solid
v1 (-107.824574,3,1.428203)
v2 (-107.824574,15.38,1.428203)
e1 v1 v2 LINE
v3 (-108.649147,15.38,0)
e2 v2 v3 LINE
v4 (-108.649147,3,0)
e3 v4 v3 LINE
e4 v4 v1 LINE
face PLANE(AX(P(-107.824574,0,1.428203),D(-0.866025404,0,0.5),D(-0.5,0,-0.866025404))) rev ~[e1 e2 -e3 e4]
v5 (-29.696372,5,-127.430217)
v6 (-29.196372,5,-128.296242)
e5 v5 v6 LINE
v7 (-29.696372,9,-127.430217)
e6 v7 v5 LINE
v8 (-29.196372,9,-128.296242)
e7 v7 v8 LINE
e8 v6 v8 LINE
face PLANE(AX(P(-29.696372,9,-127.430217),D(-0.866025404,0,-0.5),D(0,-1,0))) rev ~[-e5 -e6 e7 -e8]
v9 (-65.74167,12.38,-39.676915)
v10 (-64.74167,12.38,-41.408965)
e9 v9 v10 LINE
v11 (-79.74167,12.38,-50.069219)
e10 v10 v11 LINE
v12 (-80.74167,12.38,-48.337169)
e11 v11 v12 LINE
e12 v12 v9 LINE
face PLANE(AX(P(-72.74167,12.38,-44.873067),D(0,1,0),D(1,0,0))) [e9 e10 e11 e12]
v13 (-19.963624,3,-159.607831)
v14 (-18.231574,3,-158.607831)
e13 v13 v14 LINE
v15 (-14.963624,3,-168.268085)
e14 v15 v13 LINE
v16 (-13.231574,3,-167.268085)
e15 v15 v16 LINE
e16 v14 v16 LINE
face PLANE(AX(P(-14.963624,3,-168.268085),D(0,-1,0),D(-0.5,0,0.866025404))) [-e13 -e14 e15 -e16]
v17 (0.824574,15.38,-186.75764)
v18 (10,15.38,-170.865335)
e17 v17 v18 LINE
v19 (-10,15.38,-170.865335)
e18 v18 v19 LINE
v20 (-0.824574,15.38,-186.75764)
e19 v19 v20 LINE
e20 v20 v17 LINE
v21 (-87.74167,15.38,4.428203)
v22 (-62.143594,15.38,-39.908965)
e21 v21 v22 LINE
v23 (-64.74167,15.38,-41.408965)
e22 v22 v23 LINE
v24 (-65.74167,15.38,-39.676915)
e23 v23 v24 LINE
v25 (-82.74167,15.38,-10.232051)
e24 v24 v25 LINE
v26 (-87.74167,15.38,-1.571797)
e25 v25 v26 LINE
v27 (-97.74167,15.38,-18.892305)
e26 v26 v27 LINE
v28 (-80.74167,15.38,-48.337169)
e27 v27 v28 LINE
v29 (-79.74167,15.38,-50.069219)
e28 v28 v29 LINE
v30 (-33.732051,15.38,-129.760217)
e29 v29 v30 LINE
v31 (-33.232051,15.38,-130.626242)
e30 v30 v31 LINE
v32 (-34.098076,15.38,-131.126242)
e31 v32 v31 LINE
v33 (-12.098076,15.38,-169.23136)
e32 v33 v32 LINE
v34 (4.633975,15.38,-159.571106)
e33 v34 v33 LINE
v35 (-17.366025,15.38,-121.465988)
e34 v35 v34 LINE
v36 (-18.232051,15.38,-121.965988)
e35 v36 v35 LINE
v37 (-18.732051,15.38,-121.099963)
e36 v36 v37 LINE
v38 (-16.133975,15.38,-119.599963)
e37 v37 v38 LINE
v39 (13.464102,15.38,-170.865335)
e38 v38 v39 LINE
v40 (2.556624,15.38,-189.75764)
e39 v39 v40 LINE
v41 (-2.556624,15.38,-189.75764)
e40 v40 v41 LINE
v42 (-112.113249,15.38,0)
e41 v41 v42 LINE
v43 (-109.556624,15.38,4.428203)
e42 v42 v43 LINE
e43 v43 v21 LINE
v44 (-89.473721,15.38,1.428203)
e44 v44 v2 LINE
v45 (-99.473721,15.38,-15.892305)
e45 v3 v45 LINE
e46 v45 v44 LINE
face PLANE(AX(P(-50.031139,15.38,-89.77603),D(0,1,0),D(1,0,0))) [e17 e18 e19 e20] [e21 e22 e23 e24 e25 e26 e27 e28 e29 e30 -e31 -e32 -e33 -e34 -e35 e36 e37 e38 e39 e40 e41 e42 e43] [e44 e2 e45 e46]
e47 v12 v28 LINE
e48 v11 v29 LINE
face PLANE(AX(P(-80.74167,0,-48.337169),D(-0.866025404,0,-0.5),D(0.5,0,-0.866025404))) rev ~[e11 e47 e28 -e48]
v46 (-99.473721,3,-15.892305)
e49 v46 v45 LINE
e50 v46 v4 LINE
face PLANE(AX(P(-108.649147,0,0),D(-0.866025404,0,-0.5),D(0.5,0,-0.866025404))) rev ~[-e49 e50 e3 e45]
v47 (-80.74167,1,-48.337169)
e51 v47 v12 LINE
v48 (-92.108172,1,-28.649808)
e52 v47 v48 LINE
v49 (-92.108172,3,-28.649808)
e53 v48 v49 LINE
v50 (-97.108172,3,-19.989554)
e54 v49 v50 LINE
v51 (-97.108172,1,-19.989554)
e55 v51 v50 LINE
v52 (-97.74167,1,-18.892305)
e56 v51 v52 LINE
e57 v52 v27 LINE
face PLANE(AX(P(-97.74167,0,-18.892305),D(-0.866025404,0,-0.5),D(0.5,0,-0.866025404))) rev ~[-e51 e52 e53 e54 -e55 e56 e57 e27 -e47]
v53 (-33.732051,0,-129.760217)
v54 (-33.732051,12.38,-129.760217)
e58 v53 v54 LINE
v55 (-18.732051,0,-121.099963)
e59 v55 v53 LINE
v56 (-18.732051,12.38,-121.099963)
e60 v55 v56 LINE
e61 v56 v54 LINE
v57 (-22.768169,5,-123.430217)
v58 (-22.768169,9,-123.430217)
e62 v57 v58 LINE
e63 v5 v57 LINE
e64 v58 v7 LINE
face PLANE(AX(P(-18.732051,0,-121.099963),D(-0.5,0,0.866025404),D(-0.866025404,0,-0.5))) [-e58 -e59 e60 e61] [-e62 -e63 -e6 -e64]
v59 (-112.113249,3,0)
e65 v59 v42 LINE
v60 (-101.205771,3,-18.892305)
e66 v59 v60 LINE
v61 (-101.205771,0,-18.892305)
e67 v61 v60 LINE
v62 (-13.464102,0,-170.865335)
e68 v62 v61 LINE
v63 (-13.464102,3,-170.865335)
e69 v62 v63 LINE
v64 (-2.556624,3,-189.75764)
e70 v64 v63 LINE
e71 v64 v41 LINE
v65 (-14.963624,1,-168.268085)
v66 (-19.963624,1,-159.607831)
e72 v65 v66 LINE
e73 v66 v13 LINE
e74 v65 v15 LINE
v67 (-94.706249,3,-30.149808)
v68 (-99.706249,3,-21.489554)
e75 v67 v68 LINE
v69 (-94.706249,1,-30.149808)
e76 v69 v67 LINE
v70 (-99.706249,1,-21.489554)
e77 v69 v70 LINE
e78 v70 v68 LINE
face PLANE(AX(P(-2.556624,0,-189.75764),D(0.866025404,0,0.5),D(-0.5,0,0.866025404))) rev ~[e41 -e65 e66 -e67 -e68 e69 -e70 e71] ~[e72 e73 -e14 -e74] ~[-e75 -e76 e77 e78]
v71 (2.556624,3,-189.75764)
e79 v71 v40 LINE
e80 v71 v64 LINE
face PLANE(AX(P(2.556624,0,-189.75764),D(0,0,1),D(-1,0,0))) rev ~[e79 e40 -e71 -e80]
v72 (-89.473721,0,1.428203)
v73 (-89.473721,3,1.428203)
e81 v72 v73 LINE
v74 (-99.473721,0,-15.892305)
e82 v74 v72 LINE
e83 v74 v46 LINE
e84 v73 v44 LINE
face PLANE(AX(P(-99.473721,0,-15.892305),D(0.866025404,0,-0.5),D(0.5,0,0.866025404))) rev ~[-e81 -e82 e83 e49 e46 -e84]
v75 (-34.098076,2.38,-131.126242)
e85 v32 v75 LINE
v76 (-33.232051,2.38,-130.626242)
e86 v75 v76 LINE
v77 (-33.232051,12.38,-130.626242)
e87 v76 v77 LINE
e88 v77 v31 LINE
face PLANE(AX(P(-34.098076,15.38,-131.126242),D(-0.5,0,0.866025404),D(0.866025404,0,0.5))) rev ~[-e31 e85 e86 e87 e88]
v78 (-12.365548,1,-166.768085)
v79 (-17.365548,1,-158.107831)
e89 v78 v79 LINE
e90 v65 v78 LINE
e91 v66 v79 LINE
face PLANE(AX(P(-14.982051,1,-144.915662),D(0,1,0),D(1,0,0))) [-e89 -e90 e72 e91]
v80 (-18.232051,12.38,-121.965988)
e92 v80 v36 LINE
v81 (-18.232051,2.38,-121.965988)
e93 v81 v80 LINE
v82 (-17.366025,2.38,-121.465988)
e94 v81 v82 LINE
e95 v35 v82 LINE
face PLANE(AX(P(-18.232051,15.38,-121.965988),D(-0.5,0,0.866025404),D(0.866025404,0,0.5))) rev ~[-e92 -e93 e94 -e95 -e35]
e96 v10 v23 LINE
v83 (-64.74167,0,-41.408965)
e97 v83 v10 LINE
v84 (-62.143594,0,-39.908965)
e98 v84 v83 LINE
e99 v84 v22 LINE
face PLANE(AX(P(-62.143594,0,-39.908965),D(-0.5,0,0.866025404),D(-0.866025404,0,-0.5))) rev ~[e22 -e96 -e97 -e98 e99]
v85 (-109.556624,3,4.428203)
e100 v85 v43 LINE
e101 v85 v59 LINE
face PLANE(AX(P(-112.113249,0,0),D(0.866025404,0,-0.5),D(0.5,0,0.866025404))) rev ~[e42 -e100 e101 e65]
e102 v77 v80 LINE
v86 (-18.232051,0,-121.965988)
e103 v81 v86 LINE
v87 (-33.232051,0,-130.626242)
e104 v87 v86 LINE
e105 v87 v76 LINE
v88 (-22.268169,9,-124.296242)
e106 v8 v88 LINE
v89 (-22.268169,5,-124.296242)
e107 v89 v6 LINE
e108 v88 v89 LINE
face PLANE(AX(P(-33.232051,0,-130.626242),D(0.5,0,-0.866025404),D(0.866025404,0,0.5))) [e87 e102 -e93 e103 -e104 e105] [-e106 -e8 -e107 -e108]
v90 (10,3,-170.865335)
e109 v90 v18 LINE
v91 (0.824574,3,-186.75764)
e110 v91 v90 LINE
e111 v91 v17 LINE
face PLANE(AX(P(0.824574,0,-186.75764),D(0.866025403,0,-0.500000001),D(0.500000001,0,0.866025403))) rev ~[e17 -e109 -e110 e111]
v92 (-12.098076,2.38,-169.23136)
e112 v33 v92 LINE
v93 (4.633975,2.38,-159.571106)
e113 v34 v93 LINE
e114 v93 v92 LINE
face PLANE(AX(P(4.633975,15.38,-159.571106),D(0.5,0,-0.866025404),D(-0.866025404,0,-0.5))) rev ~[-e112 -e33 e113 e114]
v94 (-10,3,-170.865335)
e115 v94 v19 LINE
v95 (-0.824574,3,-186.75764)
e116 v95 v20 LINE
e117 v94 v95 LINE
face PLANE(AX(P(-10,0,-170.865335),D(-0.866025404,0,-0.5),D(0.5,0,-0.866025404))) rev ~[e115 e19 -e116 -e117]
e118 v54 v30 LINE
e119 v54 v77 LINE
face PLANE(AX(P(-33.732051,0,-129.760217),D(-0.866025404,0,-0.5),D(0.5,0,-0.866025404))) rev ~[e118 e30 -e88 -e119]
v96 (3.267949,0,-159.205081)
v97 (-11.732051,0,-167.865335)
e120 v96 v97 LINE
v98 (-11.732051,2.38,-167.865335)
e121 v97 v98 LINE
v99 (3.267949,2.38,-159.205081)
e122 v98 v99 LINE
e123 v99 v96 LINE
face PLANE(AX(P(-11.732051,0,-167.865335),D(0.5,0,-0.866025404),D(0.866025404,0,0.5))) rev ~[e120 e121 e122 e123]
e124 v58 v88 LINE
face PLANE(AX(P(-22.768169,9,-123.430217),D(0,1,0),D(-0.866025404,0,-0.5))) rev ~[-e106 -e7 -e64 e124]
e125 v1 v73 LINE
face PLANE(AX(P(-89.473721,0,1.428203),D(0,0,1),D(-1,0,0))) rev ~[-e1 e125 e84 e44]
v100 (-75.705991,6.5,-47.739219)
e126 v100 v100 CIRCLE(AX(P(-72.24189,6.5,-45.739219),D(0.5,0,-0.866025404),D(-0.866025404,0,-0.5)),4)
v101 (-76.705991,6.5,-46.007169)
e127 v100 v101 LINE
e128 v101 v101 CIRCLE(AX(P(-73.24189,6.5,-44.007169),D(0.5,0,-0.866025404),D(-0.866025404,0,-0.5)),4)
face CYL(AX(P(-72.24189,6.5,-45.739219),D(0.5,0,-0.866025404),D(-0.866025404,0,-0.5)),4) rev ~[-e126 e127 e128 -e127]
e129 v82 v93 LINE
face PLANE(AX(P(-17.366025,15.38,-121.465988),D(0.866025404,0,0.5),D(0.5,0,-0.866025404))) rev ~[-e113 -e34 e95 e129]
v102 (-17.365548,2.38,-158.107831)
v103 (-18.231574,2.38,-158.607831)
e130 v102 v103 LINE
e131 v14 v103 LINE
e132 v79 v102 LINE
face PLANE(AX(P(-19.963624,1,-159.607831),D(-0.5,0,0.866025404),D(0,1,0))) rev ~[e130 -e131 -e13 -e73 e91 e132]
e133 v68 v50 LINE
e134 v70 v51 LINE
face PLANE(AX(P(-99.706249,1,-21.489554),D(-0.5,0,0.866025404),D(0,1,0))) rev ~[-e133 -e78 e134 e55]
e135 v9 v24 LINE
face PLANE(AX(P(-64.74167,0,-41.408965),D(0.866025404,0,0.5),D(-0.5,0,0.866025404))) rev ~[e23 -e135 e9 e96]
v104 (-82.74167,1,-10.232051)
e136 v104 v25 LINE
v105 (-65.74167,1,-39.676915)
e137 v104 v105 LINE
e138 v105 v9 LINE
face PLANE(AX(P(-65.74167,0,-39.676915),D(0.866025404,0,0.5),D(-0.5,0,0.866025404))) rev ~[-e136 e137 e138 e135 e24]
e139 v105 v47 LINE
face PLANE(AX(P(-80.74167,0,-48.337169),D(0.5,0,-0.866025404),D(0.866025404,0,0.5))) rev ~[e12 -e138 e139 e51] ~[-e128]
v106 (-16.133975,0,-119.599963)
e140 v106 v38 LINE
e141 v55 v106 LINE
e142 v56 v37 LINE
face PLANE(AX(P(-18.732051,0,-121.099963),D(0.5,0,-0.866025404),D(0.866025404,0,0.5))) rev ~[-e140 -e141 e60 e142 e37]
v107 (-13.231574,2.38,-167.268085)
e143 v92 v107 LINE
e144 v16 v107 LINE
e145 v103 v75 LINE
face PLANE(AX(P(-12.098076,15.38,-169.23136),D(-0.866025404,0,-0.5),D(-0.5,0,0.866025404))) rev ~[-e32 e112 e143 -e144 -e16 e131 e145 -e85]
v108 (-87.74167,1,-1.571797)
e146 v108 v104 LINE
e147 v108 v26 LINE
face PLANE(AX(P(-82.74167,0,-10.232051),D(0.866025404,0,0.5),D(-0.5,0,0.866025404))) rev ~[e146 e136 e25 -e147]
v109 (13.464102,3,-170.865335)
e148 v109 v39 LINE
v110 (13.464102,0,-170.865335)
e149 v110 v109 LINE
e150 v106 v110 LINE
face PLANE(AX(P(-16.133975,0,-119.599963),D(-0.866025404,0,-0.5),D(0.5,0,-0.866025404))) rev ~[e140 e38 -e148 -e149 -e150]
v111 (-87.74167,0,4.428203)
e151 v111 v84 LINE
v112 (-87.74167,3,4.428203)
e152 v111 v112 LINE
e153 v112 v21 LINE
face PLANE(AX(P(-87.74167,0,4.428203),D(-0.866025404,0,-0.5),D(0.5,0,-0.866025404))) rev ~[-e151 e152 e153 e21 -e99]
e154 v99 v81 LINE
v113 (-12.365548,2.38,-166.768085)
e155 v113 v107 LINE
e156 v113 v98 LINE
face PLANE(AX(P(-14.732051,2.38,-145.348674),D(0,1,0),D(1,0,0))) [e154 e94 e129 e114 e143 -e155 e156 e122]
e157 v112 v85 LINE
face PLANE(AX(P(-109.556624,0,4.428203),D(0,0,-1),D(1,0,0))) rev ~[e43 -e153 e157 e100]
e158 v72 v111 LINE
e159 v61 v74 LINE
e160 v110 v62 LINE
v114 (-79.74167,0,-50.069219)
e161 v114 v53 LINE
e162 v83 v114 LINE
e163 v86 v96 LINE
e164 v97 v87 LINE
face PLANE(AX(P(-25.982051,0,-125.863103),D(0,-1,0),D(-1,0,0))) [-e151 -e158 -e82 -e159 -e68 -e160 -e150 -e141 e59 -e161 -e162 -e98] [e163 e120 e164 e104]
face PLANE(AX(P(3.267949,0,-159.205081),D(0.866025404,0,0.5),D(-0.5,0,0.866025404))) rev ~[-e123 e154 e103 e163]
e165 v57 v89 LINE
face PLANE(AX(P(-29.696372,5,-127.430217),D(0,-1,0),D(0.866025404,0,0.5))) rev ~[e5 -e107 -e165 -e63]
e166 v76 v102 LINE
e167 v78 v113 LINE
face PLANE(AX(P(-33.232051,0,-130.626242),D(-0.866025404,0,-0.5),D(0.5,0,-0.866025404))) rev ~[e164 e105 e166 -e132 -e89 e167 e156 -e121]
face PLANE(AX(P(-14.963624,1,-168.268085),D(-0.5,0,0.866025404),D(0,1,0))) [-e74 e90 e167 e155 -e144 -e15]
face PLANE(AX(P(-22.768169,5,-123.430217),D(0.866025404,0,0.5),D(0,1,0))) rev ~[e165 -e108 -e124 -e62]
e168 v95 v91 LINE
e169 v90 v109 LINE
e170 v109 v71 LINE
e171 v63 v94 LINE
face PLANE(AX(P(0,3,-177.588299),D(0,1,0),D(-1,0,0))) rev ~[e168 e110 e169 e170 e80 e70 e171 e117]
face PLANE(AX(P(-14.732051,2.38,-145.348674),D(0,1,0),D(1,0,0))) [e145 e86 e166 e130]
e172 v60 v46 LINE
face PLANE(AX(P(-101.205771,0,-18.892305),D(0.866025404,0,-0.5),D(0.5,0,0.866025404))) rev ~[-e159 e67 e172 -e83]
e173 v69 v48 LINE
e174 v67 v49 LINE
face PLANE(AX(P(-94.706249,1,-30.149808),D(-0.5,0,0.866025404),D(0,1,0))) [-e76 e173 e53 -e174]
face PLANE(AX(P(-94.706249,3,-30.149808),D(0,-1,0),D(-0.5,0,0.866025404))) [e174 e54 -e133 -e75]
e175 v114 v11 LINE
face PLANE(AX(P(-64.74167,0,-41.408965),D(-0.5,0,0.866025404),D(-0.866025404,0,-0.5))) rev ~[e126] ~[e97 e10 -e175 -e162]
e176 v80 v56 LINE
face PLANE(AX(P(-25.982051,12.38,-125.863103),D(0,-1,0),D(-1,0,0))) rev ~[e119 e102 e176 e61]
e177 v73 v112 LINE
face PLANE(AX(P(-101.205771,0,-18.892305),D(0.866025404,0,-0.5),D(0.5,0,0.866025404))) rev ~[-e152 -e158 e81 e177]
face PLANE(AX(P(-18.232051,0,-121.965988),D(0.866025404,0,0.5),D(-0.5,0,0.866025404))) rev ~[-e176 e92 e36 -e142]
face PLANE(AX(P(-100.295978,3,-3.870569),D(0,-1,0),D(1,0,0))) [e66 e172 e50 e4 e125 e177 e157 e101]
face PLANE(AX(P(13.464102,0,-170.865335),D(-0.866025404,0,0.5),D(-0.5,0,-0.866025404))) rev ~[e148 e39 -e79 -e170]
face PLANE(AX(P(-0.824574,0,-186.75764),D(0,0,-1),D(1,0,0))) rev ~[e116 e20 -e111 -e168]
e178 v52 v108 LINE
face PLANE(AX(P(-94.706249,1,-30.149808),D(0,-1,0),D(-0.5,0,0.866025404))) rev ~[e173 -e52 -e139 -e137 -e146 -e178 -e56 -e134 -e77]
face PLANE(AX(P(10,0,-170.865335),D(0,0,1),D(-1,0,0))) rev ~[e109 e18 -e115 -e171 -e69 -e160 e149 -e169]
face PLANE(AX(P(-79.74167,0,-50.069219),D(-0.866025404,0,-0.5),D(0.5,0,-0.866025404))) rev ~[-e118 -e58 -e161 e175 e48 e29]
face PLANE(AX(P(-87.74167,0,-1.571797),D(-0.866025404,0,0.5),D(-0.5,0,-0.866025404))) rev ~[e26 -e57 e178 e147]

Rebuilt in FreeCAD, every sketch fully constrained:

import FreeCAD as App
import Part
import Sketcher
Q = App.Units.Quantity

doc = App.newDocument("Part")
params = doc.addObject("Spreadsheet::Sheet", "Params")
for row, (alias, value) in enumerate([
    ("sketch1_width", "20 mm"),
    ("sketch1_length", "43 mm"),
    ("sketch1_length2", "1 mm"),
    ("sketch1_length3", "3 mm"),
    ("sketch1_length4", "2 mm"),
    ("pad1_length", "15.38 mm"),
    ("sketch2_length", "43 mm"),
    ("sketch2_length2", "34 mm"),
    ("sketch2_length3", "20 mm"),
    ("pad2_length", "1 mm"),
    ("sketch3_length", "1 mm"),
    ("sketch3_length2", "2 mm"),
    ("pad3_length", "12.38 mm"),
    ("sketch4_width", "8 mm"),
    ("sketch4_height", "4 mm"),
    ("pocket1_length", "8.26 mm"),
    ("sketch5_diameter", "8 mm"),
    ("pocket2_length", "8.26 mm"),
    ("pocket3_length", "3 mm"),
    ("sketch7_width", "10 mm"),
    ("sketch7_height", "2 mm"),
    ("pocket4_length", "3 mm"),
    ("sketch8_length", "1 mm"),
    ("sketch8_length2", "44 mm"),
    ("pocket5_length", "13 mm"),
    ("sketch9_length", "43 mm"),
    ("pocket6_length", "1 mm"),
], start=1):
    params.set(f"A{row}", alias)
    params.set(f"B{row}", "=" + value)
    params.setAlias(f"B{row}", alias)

body = doc.addObject("PartDesign::Body", "Body")

# Sketch on XZ plane
sketch1 = body.newObject("Sketcher::SketchObject", "Sketch")
sketch1.AttachmentSupport = (doc.getObject("XZ_Plane"), [""])
sketch1.MapMode = "FlatFace"
sketch1.addGeometry(Part.LineSegment(App.Vector(-33.2, -130.6, 0), App.Vector(-11.7, -167.9, 0)), False)
sketch1.addGeometry(Part.LineSegment(App.Vector(-11.7, -167.9, 0), App.Vector(3.3, -159.2, 0)), False)
sketch1.addGeometry(Part.LineSegment(App.Vector(3.3, -159.2, 0), App.Vector(-18.2, -122, 0)), False)
sketch1.addGeometry(Part.LineSegment(App.Vector(-18.2, -122, 0), App.Vector(-18.7, -121.1, 0)), False)
sketch1.addGeometry(Part.LineSegment(App.Vector(-18.7, -121.1, 0), App.Vector(-16.1, -119.6, 0)), False)
sketch1.addGeometry(Part.LineSegment(App.Vector(-16.1, -119.6, 0), App.Vector(13.5, -170.9, 0)), False)
sketch1.addGeometry(Part.LineSegment(App.Vector(13.5, -170.9, 0), App.Vector(2.6, -189.8, 0)), False)
sketch1.addGeometry(Part.LineSegment(App.Vector(2.6, -189.8, 0), App.Vector(-2.6, -189.8, 0)), False)
sketch1.addGeometry(Part.LineSegment(App.Vector(-2.6, -189.8, 0), App.Vector(-112.1, 0, 0)), False)
sketch1.addGeometry(Part.LineSegment(App.Vector(-112.1, 0, 0), App.Vector(-109.6, 4.4, 0)), False)
sketch1.addGeometry(Part.LineSegment(App.Vector(-109.6, 4.4, 0), App.Vector(-87.7, 4.4, 0)), False)
sketch1.addGeometry(Part.LineSegment(App.Vector(-87.7, 4.4, 0), App.Vector(-62.1, -39.9, 0)), False)
sketch1.addGeometry(Part.LineSegment(App.Vector(-62.1, -39.9, 0), App.Vector(-64.7, -41.4, 0)), False)
sketch1.addGeometry(Part.LineSegment(App.Vector(-64.7, -41.4, 0), App.Vector(-65.7, -39.7, 0)), False)
sketch1.addGeometry(Part.LineSegment(App.Vector(-65.7, -39.7, 0), App.Vector(-82.7, -10.2, 0)), False)
sketch1.addGeometry(Part.LineSegment(App.Vector(-82.7, -10.2, 0), App.Vector(-87.7, -1.6, 0)), False)
sketch1.addGeometry(Part.LineSegment(App.Vector(-87.7, -1.6, 0), App.Vector(-97.7, -18.9, 0)), False)
sketch1.addGeometry(Part.LineSegment(App.Vector(-97.7, -18.9, 0), App.Vector(-80.7, -48.3, 0)), False)
sketch1.addGeometry(Part.LineSegment(App.Vector(-80.7, -48.3, 0), App.Vector(-79.7, -50.1, 0)), False)
sketch1.addGeometry(Part.LineSegment(App.Vector(-79.7, -50.1, 0), App.Vector(-33.7, -129.8, 0)), False)
sketch1.addGeometry(Part.LineSegment(App.Vector(-33.7, -129.8, 0), App.Vector(-33.2, -130.6, 0)), False)
sketch1.addGeometry(Part.LineSegment(App.Vector(-99.5, -15.9, 0), App.Vector(-89.5, 1.4, 0)), False)
sketch1.addGeometry(Part.LineSegment(App.Vector(-89.5, 1.4, 0), App.Vector(-107.8, 1.4, 0)), False)
sketch1.addGeometry(Part.LineSegment(App.Vector(-107.8, 1.4, 0), App.Vector(-108.6, 0, 0)), False)
sketch1.addGeometry(Part.LineSegment(App.Vector(-108.6, 0, 0), App.Vector(-99.5, -15.9, 0)), False)
sketch1.addGeometry(Part.LineSegment(App.Vector(10, -170.9, 0), App.Vector(-10, -170.9, 0)), False)
sketch1.addGeometry(Part.LineSegment(App.Vector(-10, -170.9, 0), App.Vector(-0.8, -186.8, 0)), False)
sketch1.addGeometry(Part.LineSegment(App.Vector(-0.8, -186.8, 0), App.Vector(0.8, -186.8, 0)), False)
sketch1.addGeometry(Part.LineSegment(App.Vector(0.8, -186.8, 0), App.Vector(10, -170.9, 0)), False)
sketch1.addConstraint(Sketcher.Constraint("Coincident", 0, 2, 1, 1))
sketch1.addConstraint(Sketcher.Constraint("Coincident", 1, 2, 2, 1))
sketch1.addConstraint(Sketcher.Constraint("Coincident", 2, 2, 3, 1))
sketch1.addConstraint(Sketcher.Constraint("Coincident", 3, 2, 4, 1))
sketch1.addConstraint(Sketcher.Constraint("Coincident", 4, 2, 5, 1))
sketch1.addConstraint(Sketcher.Constraint("Coincident", 5, 2, 6, 1))
sketch1.addConstraint(Sketcher.Constraint("Coincident", 6, 2, 7, 1))
sketch1.addConstraint(Sketcher.Constraint("Coincident", 7, 2, 8, 1))
sketch1.addConstraint(Sketcher.Constraint("Coincident", 8, 2, 9, 1))
sketch1.addConstraint(Sketcher.Constraint("Coincident", 9, 2, 10, 1))
sketch1.addConstraint(Sketcher.Constraint("Coincident", 10, 2, 11, 1))
sketch1.addConstraint(Sketcher.Constraint("Coincident", 11, 2, 12, 1))
sketch1.addConstraint(Sketcher.Constraint("Coincident", 12, 2, 13, 1))
sketch1.addConstraint(Sketcher.Constraint("Coincident", 13, 2, 14, 1))
sketch1.addConstraint(Sketcher.Constraint("Coincident", 14, 2, 15, 1))
sketch1.addConstraint(Sketcher.Constraint("Coincident", 15, 2, 16, 1))
sketch1.addConstraint(Sketcher.Constraint("Coincident", 16, 2, 17, 1))
sketch1.addConstraint(Sketcher.Constraint("Coincident", 17, 2, 18, 1))
sketch1.addConstraint(Sketcher.Constraint("Coincident", 18, 2, 19, 1))
sketch1.addConstraint(Sketcher.Constraint("Coincident", 19, 2, 20, 1))
sketch1.addConstraint(Sketcher.Constraint("Coincident", 20, 2, 0, 1))
sketch1.addConstraint(Sketcher.Constraint("Coincident", 21, 2, 22, 1))
sketch1.addConstraint(Sketcher.Constraint("Coincident", 22, 2, 23, 1))
sketch1.addConstraint(Sketcher.Constraint("Coincident", 23, 2, 24, 1))
sketch1.addConstraint(Sketcher.Constraint("Coincident", 24, 2, 21, 1))
sketch1.addConstraint(Sketcher.Constraint("Coincident", 25, 2, 26, 1))
sketch1.addConstraint(Sketcher.Constraint("Coincident", 26, 2, 27, 1))
sketch1.addConstraint(Sketcher.Constraint("Coincident", 27, 2, 28, 1))
sketch1.addConstraint(Sketcher.Constraint("Coincident", 28, 2, 25, 1))
sketch1.addConstraint(Sketcher.Constraint("Horizontal", 7))
sketch1.addConstraint(Sketcher.Constraint("Horizontal", 10))
sketch1.addConstraint(Sketcher.Constraint("Horizontal", 22))
sketch1.addConstraint(Sketcher.Constraint("Horizontal", 25))
sketch1.addConstraint(Sketcher.Constraint("Horizontal", 27))
sketch1.addConstraint(Sketcher.Constraint("PointOnObject", 8, 2, -1))
sketch1.addConstraint(Sketcher.Constraint("PointOnObject", 23, 2, -1))
sketch1.addConstraint(Sketcher.Constraint("Perpendicular", 0, 1))
sketch1.addConstraint(Sketcher.Constraint("Perpendicular", 1, 2))
sketch1.addConstraint(Sketcher.Constraint("Parallel", 2, 3))
sketch1.addConstraint(Sketcher.Constraint("Perpendicular", 3, 4))
sketch1.addConstraint(Sketcher.Constraint("Perpendicular", 4, 5))
sketch1.addConstraint(Sketcher.Constraint("Parallel", 5, 8))
sketch1.addConstraint(Sketcher.Constraint("Parallel", 6, 9))
sketch1.addConstraint(Sketcher.Constraint("Parallel", 8, 11))
sketch1.addConstraint(Sketcher.Constraint("Perpendicular", 11, 12))
sketch1.addConstraint(Sketcher.Constraint("Perpendicular", 12, 13))
sketch1.addConstraint(Sketcher.Constraint("Parallel", 13, 14))
sketch1.addConstraint(Sketcher.Constraint("Parallel", 14, 15))
sketch1.addConstraint(Sketcher.Constraint("Parallel", 9, 16))
sketch1.addConstraint(Sketcher.Constraint("Parallel", 15, 17))
sketch1.addConstraint(Sketcher.Constraint("Parallel", 17, 18))
sketch1.addConstraint(Sketcher.Constraint("Parallel", 18, 19))
sketch1.addConstraint(Sketcher.Constraint("Parallel", 19, 20))
sketch1.addConstraint(Sketcher.Constraint("Parallel", 16, 21))
sketch1.addConstraint(Sketcher.Constraint("Parallel", 21, 23))
sketch1.addConstraint(Sketcher.Constraint("Parallel", 20, 24))
sketch1.addConstraint(Sketcher.Constraint("Parallel", 24, 26))
sketch1.addConstraint(Sketcher.Constraint("Parallel", 23, 28))
sketch1.addConstraint(Sketcher.Constraint("Horizontal", 5, 2, 25, 2))
sketch1.addConstraint(Sketcher.Constraint("Vertical", 10, 2, 15, 2))
sketch1.addConstraint(Sketcher.Constraint("Equal", 0, 2))
sketch1.addConstraint(Sketcher.Constraint("Equal", 4, 12))
sketch1.addConstraint(Sketcher.Constraint("Equal", 14, 17))
sketch1.addConstraint(Sketcher.Constraint("Equal", 13, 18))
sketch1.addConstraint(Sketcher.Constraint("Equal", 3, 20))
sketch1.addConstraint(Sketcher.Constraint("Equal", 16, 21))
sketch1.addConstraint(Sketcher.Constraint("Equal", 24, 26))
sketch1.addConstraint(Sketcher.Constraint("Equal", 26, 28))
sketch1.addConstraint(Sketcher.Constraint("DistanceX", 25, 2, 25, 1, 20.0))
sketch1.addConstraint(Sketcher.Constraint("Angle", 0, Q("-60 deg")))
sketch1.addConstraint(Sketcher.Constraint("Distance", 0, 43.0))
sketch1.addConstraint(Sketcher.Constraint("Distance", 3, 1.0))
sketch1.addConstraint(Sketcher.Constraint("Distance", 4, 3.0))
sketch1.addConstraint(Sketcher.Constraint("Distance", 13, 2.0))
sketch1.addConstraint(Sketcher.Constraint("Distance", 14, 34.0))
sketch1.addConstraint(Sketcher.Constraint("Distance", 15, 10.0))
sketch1.addConstraint(Sketcher.Constraint("Distance", 16, 20.0))
sketch1.addConstraint(Sketcher.Constraint("DistanceX", 25, 2, -1, 1, 10.0))
sketch1.addConstraint(Sketcher.Constraint("DistanceX", 0, 2, 1, 2, 15.0))
sketch1.addConstraint(Sketcher.Constraint("DistanceY", 5, 2, 0, 2, 3.0))
sketch1.addConstraint(Sketcher.Constraint("DistanceY", 21, 2, 10, 2, 3.0))
sketch1.addConstraint(Sketcher.Constraint("DistanceY", 7, 2, 26, 2, 3.0))
sketch1.addConstraint(Sketcher.Constraint("DistanceX", 7, 2, 7, 1, 5.113249))
sketch1.addConstraint(Sketcher.Constraint("DistanceX", -1, 1, 5, 2, 13.464102))
sketch1.addConstraint(Sketcher.Constraint("DistanceX", 8, 2, 23, 2, 3.464102))
sketch1.addConstraint(Sketcher.Constraint("Distance", 8, 219.113249))
sketch1.addConstraint(Sketcher.Constraint("Distance", 9, 5.113249))
sketch1.setExpression("Constraints[68]", "Params.sketch1_width")
sketch1.setExpression("Constraints[70]", "Params.sketch1_length")
sketch1.setExpression("Constraints[71]", "Params.sketch1_length2")
sketch1.setExpression("Constraints[72]", "Params.sketch1_length3")
sketch1.setExpression("Constraints[73]", "Params.sketch1_length4")
pad1 = body.newObject("PartDesign::Pad", "Pad")
pad1.Profile = sketch1
pad1.setExpression("Length", "Params.pad1_length")
pad1.Reversed = True

# Sketch on XZ plane
sketch2 = body.newObject("Sketcher::SketchObject", "Sketch001")
sketch2.AttachmentSupport = (doc.getObject("XZ_Plane"), [""])
sketch2.MapMode = "FlatFace"
sketch2.addGeometry(Part.LineSegment(App.Vector(3, -159, 0), App.Vector(-12, -168, 0)), False)
sketch2.addGeometry(Part.LineSegment(App.Vector(-12, -168, 0), App.Vector(-33, -131, 0)), False)
sketch2.addGeometry(Part.LineSegment(App.Vector(-33, -131, 0), App.Vector(-18, -122, 0)), False)
sketch2.addGeometry(Part.LineSegment(App.Vector(-18, -122, 0), App.Vector(3, -159, 0)), False)
sketch2.addGeometry(Part.LineSegment(App.Vector(-66, -40, 0), App.Vector(-81, -48, 0)), False)
sketch2.addGeometry(Part.LineSegment(App.Vector(-81, -48, 0), App.Vector(-98, -19, 0)), False)
sketch2.addGeometry(Part.LineSegment(App.Vector(-98, -19, 0), App.Vector(-88, -2, 0)), False)
sketch2.addGeometry(Part.LineSegment(App.Vector(-88, -2, 0), App.Vector(-66, -40, 0)), False)
sketch2.addConstraint(Sketcher.Constraint("Coincident", 0, 2, 1, 1))
sketch2.addConstraint(Sketcher.Constraint("Coincident", 1, 2, 2, 1))
sketch2.addConstraint(Sketcher.Constraint("Coincident", 2, 2, 3, 1))
sketch2.addConstraint(Sketcher.Constraint("Coincident", 3, 2, 0, 1))
sketch2.addConstraint(Sketcher.Constraint("Coincident", 4, 2, 5, 1))
sketch2.addConstraint(Sketcher.Constraint("Coincident", 5, 2, 6, 1))
sketch2.addConstraint(Sketcher.Constraint("Coincident", 6, 2, 7, 1))
sketch2.addConstraint(Sketcher.Constraint("Coincident", 7, 2, 4, 1))
sketch2.addConstraint(Sketcher.Constraint("Perpendicular", 0, 1))
sketch2.addConstraint(Sketcher.Constraint("Perpendicular", 1, 2))
sketch2.addConstraint(Sketcher.Constraint("Perpendicular", 2, 3))
sketch2.addConstraint(Sketcher.Constraint("Perpendicular", 3, 4))
sketch2.addConstraint(Sketcher.Constraint("Perpendicular", 4, 5))
sketch2.addConstraint(Sketcher.Constraint("Parallel", 5, 7))
sketch2.addConstraint(Sketcher.Constraint("Equal", 2, 4))
sketch2.addConstraint(Sketcher.Constraint("Angle", 0, Q("-150 deg")))
sketch2.addConstraint(Sketcher.Constraint("Angle", 6, Q("60 deg")))
sketch2.addConstraint(Sketcher.Constraint("Distance", 1, 43.0))
sketch2.addConstraint(Sketcher.Constraint("Distance", 5, 34.0))
sketch2.addConstraint(Sketcher.Constraint("Distance", 6, 20.0))
sketch2.addConstraint(Sketcher.Constraint("DistanceX", 0, 2, -1, 1, 11.732051))
sketch2.addConstraint(Sketcher.Constraint("DistanceY", 2, 2, -1, 1, 121.965988))
sketch2.addConstraint(Sketcher.Constraint("DistanceX", 4, 2, -1, 1, 80.74167))
sketch2.addConstraint(Sketcher.Constraint("DistanceY", 4, 2, -1, 1, 48.337169))
sketch2.setExpression("Constraints[17]", "Params.sketch2_length")
sketch2.setExpression("Constraints[18]", "Params.sketch2_length2")
sketch2.setExpression("Constraints[19]", "Params.sketch2_length3")
pad2 = body.newObject("PartDesign::Pad", "Pad001")
pad2.Profile = sketch2
pad2.setExpression("Length", "Params.pad2_length")
pad2.Reversed = True

# Sketch on XZ plane
sketch3 = body.newObject("Sketcher::SketchObject", "Sketch002")
sketch3.AttachmentSupport = (doc.getObject("XZ_Plane"), [""])
sketch3.MapMode = "FlatFace"
sketch3.addGeometry(Part.LineSegment(App.Vector(-33.2, -130.6, 0), App.Vector(-33.7, -129.8, 0)), False)
sketch3.addGeometry(Part.LineSegment(App.Vector(-33.7, -129.8, 0), App.Vector(-18.7, -121.1, 0)), False)
sketch3.addGeometry(Part.LineSegment(App.Vector(-18.7, -121.1, 0), App.Vector(-18.2, -122, 0)), False)
sketch3.addGeometry(Part.LineSegment(App.Vector(-18.2, -122, 0), App.Vector(-33.2, -130.6, 0)), False)
sketch3.addGeometry(Part.LineSegment(App.Vector(-64.7, -41.4, 0), App.Vector(-79.7, -50.1, 0)), False)
sketch3.addGeometry(Part.LineSegment(App.Vector(-79.7, -50.1, 0), App.Vector(-80.7, -48.3, 0)), False)
sketch3.addGeometry(Part.LineSegment(App.Vector(-80.7, -48.3, 0), App.Vector(-65.7, -39.7, 0)), False)
sketch3.addGeometry(Part.LineSegment(App.Vector(-65.7, -39.7, 0), App.Vector(-64.7, -41.4, 0)), False)
sketch3.addConstraint(Sketcher.Constraint("Coincident", 0, 2, 1, 1))
sketch3.addConstraint(Sketcher.Constraint("Coincident", 1, 2, 2, 1))
sketch3.addConstraint(Sketcher.Constraint("Coincident", 2, 2, 3, 1))
sketch3.addConstraint(Sketcher.Constraint("Coincident", 3, 2, 0, 1))
sketch3.addConstraint(Sketcher.Constraint("Coincident", 4, 2, 5, 1))
sketch3.addConstraint(Sketcher.Constraint("Coincident", 5, 2, 6, 1))
sketch3.addConstraint(Sketcher.Constraint("Coincident", 6, 2, 7, 1))
sketch3.addConstraint(Sketcher.Constraint("Coincident", 7, 2, 4, 1))
sketch3.addConstraint(Sketcher.Constraint("Perpendicular", 0, 1))
sketch3.addConstraint(Sketcher.Constraint("Perpendicular", 1, 2))
sketch3.addConstraint(Sketcher.Constraint("Perpendicular", 2, 3))
sketch3.addConstraint(Sketcher.Constraint("Parallel", 3, 4))
sketch3.addConstraint(Sketcher.Constraint("Perpendicular", 4, 5))
sketch3.addConstraint(Sketcher.Constraint("Perpendicular", 5, 6))
sketch3.addConstraint(Sketcher.Constraint("Perpendicular", 6, 7))
sketch3.addConstraint(Sketcher.Constraint("Equal", 3, 4))
sketch3.addConstraint(Sketcher.Constraint("Angle", 0, Q("120 deg")))
sketch3.addConstraint(Sketcher.Constraint("Distance", 0, 1.0))
sketch3.addConstraint(Sketcher.Constraint("Distance", 5, 2.0))
sketch3.addConstraint(Sketcher.Constraint("DistanceX", 0, 2, 1, 2, 15.0))
sketch3.addConstraint(Sketcher.Constraint("DistanceX", 0, 2, -1, 1, 33.732051))
sketch3.addConstraint(Sketcher.Constraint("DistanceY", 2, 2, -1, 1, 121.965988))
sketch3.addConstraint(Sketcher.Constraint("DistanceX", 4, 2, -1, 1, 79.74167))
sketch3.addConstraint(Sketcher.Constraint("DistanceY", 4, 2, -1, 1, 50.069219))
sketch3.setExpression("Constraints[17]", "Params.sketch3_length")
sketch3.setExpression("Constraints[18]", "Params.sketch3_length2")
pad3 = body.newObject("PartDesign::Pad", "Pad002")
pad3.Profile = sketch3
pad3.setExpression("Length", "Params.pad3_length")
pad3.Reversed = True

# Sketch on an angled plane
sketch4 = body.newObject("Sketcher::SketchObject", "Sketch003")
sketch4.Placement = App.Placement(App.Vector(47.754809, 0, -82.713756), App.Rotation(App.Vector(0.866025404, 0, 0.5), App.Vector(0, 1, 0), App.Vector(-0.5, 0, 0.866025404), "ZXY"))
sketch4.addGeometry(Part.LineSegment(App.Vector(-81.4, 5, 0), App.Vector(-81.4, 9, 0)), False)
sketch4.addGeometry(Part.LineSegment(App.Vector(-81.4, 9, 0), App.Vector(-89.4, 9, 0)), False)
sketch4.addGeometry(Part.LineSegment(App.Vector(-89.4, 9, 0), App.Vector(-89.4, 5, 0)), False)
sketch4.addGeometry(Part.LineSegment(App.Vector(-89.4, 5, 0), App.Vector(-81.4, 5, 0)), False)
sketch4.addConstraint(Sketcher.Constraint("Coincident", 0, 2, 1, 1))
sketch4.addConstraint(Sketcher.Constraint("Coincident", 1, 2, 2, 1))
sketch4.addConstraint(Sketcher.Constraint("Coincident", 2, 2, 3, 1))
sketch4.addConstraint(Sketcher.Constraint("Coincident", 3, 2, 0, 1))
sketch4.addConstraint(Sketcher.Constraint("Vertical", 0))
sketch4.addConstraint(Sketcher.Constraint("Horizontal", 1))
sketch4.addConstraint(Sketcher.Constraint("Vertical", 2))
sketch4.addConstraint(Sketcher.Constraint("Horizontal", 3))
sketch4.addConstraint(Sketcher.Constraint("DistanceX", 1, 2, 1, 1, 8.0))
sketch4.addConstraint(Sketcher.Constraint("DistanceY", 0, 1, 0, 2, 4.0))
sketch4.addConstraint(Sketcher.Constraint("DistanceY", -1, 1, 0, 2, 9.0))
sketch4.addConstraint(Sketcher.Constraint("DistanceX", 0, 2, -1, 1, 81.432921))
sketch4.setExpression("Constraints[8]", "Params.sketch4_width")
sketch4.setExpression("Constraints[9]", "Params.sketch4_height")
pocket1 = body.newObject("PartDesign::Pocket", "Pocket")
pocket1.Profile = sketch4
pocket1.setExpression("Length", "Params.pocket1_length")

# Sketch on an angled plane
sketch5 = body.newObject("Sketcher::SketchObject", "Sketch004")
sketch5.Placement = App.Placement(App.Vector(1.745191, 0, -3.022759), App.Rotation(App.Vector(-0.866025404, 0, -0.5), App.Vector(0, 1, 0), App.Vector(0.5, 0, -0.866025404), "ZXY"))
sketch5.addGeometry(Part.Circle(App.Vector(85.4, 6.5, 0), App.Vector(0, 0, 1), 4), False)
sketch5.addConstraint(Sketcher.Constraint("Diameter", 0, 8.0))
sketch5.addConstraint(Sketcher.Constraint("DistanceY", -1, 1, 0, 3, 6.5))
sketch5.addConstraint(Sketcher.Constraint("DistanceX", -1, 1, 0, 3, 85.432921))
sketch5.setExpression("Constraints[0]", "Params.sketch5_diameter")
pocket2 = body.newObject("PartDesign::Pocket", "Pocket001")
pocket2.Profile = sketch5
pocket2.setExpression("Length", "Params.pocket2_length")

# Sketch on XZ plane
sketch6 = body.newObject("Sketcher::SketchObject", "Sketch005")
sketch6.AttachmentSupport = (doc.getObject("XZ_Plane"), [""])
sketch6.MapMode = "FlatFace"
sketch6.addGeometry(Part.LineSegment(App.Vector(-88, 4, 0), App.Vector(-110, 4, 0)), False)
sketch6.addGeometry(Part.LineSegment(App.Vector(-110, 4, 0), App.Vector(-112, 0, 0)), False)
sketch6.addGeometry(Part.LineSegment(App.Vector(-112, 0, 0), App.Vector(-101, -19, 0)), False)
sketch6.addGeometry(Part.LineSegment(App.Vector(-101, -19, 0), App.Vector(-88, 4, 0)), False)
sketch6.addGeometry(Part.LineSegment(App.Vector(3, -190, 0), App.Vector(13, -171, 0)), False)
sketch6.addGeometry(Part.LineSegment(App.Vector(13, -171, 0), App.Vector(-13, -171, 0)), False)
sketch6.addGeometry(Part.LineSegment(App.Vector(-13, -171, 0), App.Vector(-3, -190, 0)), False)
sketch6.addGeometry(Part.LineSegment(App.Vector(-3, -190, 0), App.Vector(3, -190, 0)), False)
sketch6.addConstraint(Sketcher.Constraint("Coincident", 0, 2, 1, 1))
sketch6.addConstraint(Sketcher.Constraint("Coincident", 1, 2, 2, 1))
sketch6.addConstraint(Sketcher.Constraint("Coincident", 2, 2, 3, 1))
sketch6.addConstraint(Sketcher.Constraint("Coincident", 3, 2, 0, 1))
sketch6.addConstraint(Sketcher.Constraint("Coincident", 4, 2, 5, 1))
sketch6.addConstraint(Sketcher.Constraint("Coincident", 5, 2, 6, 1))
sketch6.addConstraint(Sketcher.Constraint("Coincident", 6, 2, 7, 1))
sketch6.addConstraint(Sketcher.Constraint("Coincident", 7, 2, 4, 1))
sketch6.addConstraint(Sketcher.Constraint("Horizontal", 0))
sketch6.addConstraint(Sketcher.Constraint("Horizontal", 5))
sketch6.addConstraint(Sketcher.Constraint("Horizontal", 7))
sketch6.addConstraint(Sketcher.Constraint("PointOnObject", 1, 2, -1))
sketch6.addConstraint(Sketcher.Constraint("Parallel", 1, 3))
sketch6.addConstraint(Sketcher.Constraint("Parallel", 3, 4))
sketch6.addConstraint(Sketcher.Constraint("Parallel", 2, 6))
sketch6.addConstraint(Sketcher.Constraint("Equal", 2, 4))
sketch6.addConstraint(Sketcher.Constraint("Equal", 4, 6))
sketch6.addConstraint(Sketcher.Constraint("Angle", 1, Q("-120 deg")))
sketch6.addConstraint(Sketcher.Constraint("DistanceX", 7, 1, 7, 2, 5.113249))
sketch6.addConstraint(Sketcher.Constraint("DistanceX", -1, 1, 4, 2, 13.464102))
sketch6.addConstraint(Sketcher.Constraint("DistanceX", 5, 2, -1, 1, 13.464102))
sketch6.addConstraint(Sketcher.Constraint("DistanceX", 2, 2, 3, 2, 13.464102))
sketch6.addConstraint(Sketcher.Constraint("DistanceX", 1, 2, -1, 1, 112.113249))
sketch6.addConstraint(Sketcher.Constraint("DistanceY", 6, 2, -1, 1, 189.75764))
pocket3 = body.newObject("PartDesign::Pocket", "Pocket002")
pocket3.Profile = sketch6
pocket3.setExpression("Length", "Params.pocket3_length")

# Sketch on an angled plane
sketch7 = body.newObject("Sketcher::SketchObject", "Sketch006")
sketch7.Placement = App.Placement(App.Vector(-84.084936, 0, -48.546461), App.Rotation(App.Vector(-0.5, 0, 0.866025404), App.Vector(0, 1, 0), App.Vector(-0.866025404, 0, -0.5), "ZXY"))
sketch7.addGeometry(Part.LineSegment(App.Vector(-138.2, 3, 0), App.Vector(-138.2, 1, 0)), False)
sketch7.addGeometry(Part.LineSegment(App.Vector(-138.2, 1, 0), App.Vector(-128.2, 1, 0)), False)
sketch7.addGeometry(Part.LineSegment(App.Vector(-128.2, 1, 0), App.Vector(-128.2, 3, 0)), False)
sketch7.addGeometry(Part.LineSegment(App.Vector(-128.2, 3, 0), App.Vector(-138.2, 3, 0)), False)
sketch7.addGeometry(Part.LineSegment(App.Vector(21.2, 3, 0), App.Vector(21.2, 1, 0)), False)
sketch7.addGeometry(Part.LineSegment(App.Vector(21.2, 1, 0), App.Vector(31.2, 1, 0)), False)
sketch7.addGeometry(Part.LineSegment(App.Vector(31.2, 1, 0), App.Vector(31.2, 3, 0)), False)
sketch7.addGeometry(Part.LineSegment(App.Vector(31.2, 3, 0), App.Vector(21.2, 3, 0)), False)
sketch7.addConstraint(Sketcher.Constraint("Coincident", 0, 2, 1, 1))
sketch7.addConstraint(Sketcher.Constraint("Coincident", 1, 2, 2, 1))
sketch7.addConstraint(Sketcher.Constraint("Coincident", 2, 2, 3, 1))
sketch7.addConstraint(Sketcher.Constraint("Coincident", 3, 2, 0, 1))
sketch7.addConstraint(Sketcher.Constraint("Coincident", 4, 2, 5, 1))
sketch7.addConstraint(Sketcher.Constraint("Coincident", 5, 2, 6, 1))
sketch7.addConstraint(Sketcher.Constraint("Coincident", 6, 2, 7, 1))
sketch7.addConstraint(Sketcher.Constraint("Coincident", 7, 2, 4, 1))
sketch7.addConstraint(Sketcher.Constraint("Vertical", 0))
sketch7.addConstraint(Sketcher.Constraint("Horizontal", 1))
sketch7.addConstraint(Sketcher.Constraint("Vertical", 2))
sketch7.addConstraint(Sketcher.Constraint("Horizontal", 3))
sketch7.addConstraint(Sketcher.Constraint("Vertical", 4))
sketch7.addConstraint(Sketcher.Constraint("Horizontal", 5))
sketch7.addConstraint(Sketcher.Constraint("Vertical", 6))
sketch7.addConstraint(Sketcher.Constraint("Horizontal", 7))
sketch7.addConstraint(Sketcher.Constraint("Horizontal", 1, 2, 4, 2))
sketch7.addConstraint(Sketcher.Constraint("Horizontal", 3, 2, 6, 2))
sketch7.addConstraint(Sketcher.Constraint("Equal", 3, 5))
sketch7.addConstraint(Sketcher.Constraint("DistanceX", 1, 1, 1, 2, 10.0))
sketch7.addConstraint(Sketcher.Constraint("DistanceY", 0, 2, 0, 1, 2.0))
sketch7.addConstraint(Sketcher.Constraint("DistanceY", -1, 1, 0, 2, 1.0))
sketch7.addConstraint(Sketcher.Constraint("DistanceX", 1, 2, 4, 2, 149.485249))
sketch7.addConstraint(Sketcher.Constraint("DistanceX", 0, 2, -1, 1, 138.242624))
sketch7.setExpression("Constraints[19]", "Params.sketch7_width")
sketch7.setExpression("Constraints[20]", "Params.sketch7_height")
pocket4 = body.newObject("PartDesign::Pocket", "Pocket003")
pocket4.Profile = sketch7
pocket4.setExpression("Length", "Params.pocket4_length")

# Sketch on XZ plane
sketch8 = body.newObject("Sketcher::SketchObject", "Sketch007")
sketch8.AttachmentSupport = (doc.getObject("XZ_Plane"), [""])
sketch8.MapMode = "FlatFace"
sketch8.AttachmentOffset = App.Placement(App.Vector(0, 0, -15.38), App.Rotation())
sketch8.addGeometry(Part.LineSegment(App.Vector(-18.2, -122, 0), App.Vector(-17.4, -121.5, 0)), False)
sketch8.addGeometry(Part.LineSegment(App.Vector(-17.4, -121.5, 0), App.Vector(4.6, -159.6, 0)), False)
sketch8.addGeometry(Part.LineSegment(App.Vector(4.6, -159.6, 0), App.Vector(-12.1, -169.2, 0)), False)
sketch8.addGeometry(Part.LineSegment(App.Vector(-12.1, -169.2, 0), App.Vector(-34.1, -131.1, 0)), False)
sketch8.addGeometry(Part.LineSegment(App.Vector(-34.1, -131.1, 0), App.Vector(-33.2, -130.6, 0)), False)
sketch8.addGeometry(Part.LineSegment(App.Vector(-33.2, -130.6, 0), App.Vector(-18.2, -122, 0)), False)
sketch8.addConstraint(Sketcher.Constraint("Coincident", 0, 2, 1, 1))
sketch8.addConstraint(Sketcher.Constraint("Coincident", 1, 2, 2, 1))
sketch8.addConstraint(Sketcher.Constraint("Coincident", 2, 2, 3, 1))
sketch8.addConstraint(Sketcher.Constraint("Coincident", 3, 2, 4, 1))
sketch8.addConstraint(Sketcher.Constraint("Coincident", 4, 2, 5, 1))
sketch8.addConstraint(Sketcher.Constraint("Coincident", 5, 2, 0, 1))
sketch8.addConstraint(Sketcher.Constraint("Perpendicular", 0, 1))
sketch8.addConstraint(Sketcher.Constraint("Perpendicular", 1, 2))
sketch8.addConstraint(Sketcher.Constraint("Perpendicular", 2, 3))
sketch8.addConstraint(Sketcher.Constraint("Perpendicular", 3, 4))
sketch8.addConstraint(Sketcher.Constraint("Parallel", 4, 5))
sketch8.addConstraint(Sketcher.Constraint("Equal", 0, 4))
sketch8.addConstraint(Sketcher.Constraint("Angle", 0, Q("30 deg")))
sketch8.addConstraint(Sketcher.Constraint("Distance", 0, 1.0))
sketch8.addConstraint(Sketcher.Constraint("Distance", 1, 44.0))
sketch8.addConstraint(Sketcher.Constraint("DistanceX", 4, 2, 5, 2, 15.0))
sketch8.addConstraint(Sketcher.Constraint("DistanceY", 0, 2, -1, 1, 121.465988))
sketch8.addConstraint(Sketcher.Constraint("DistanceX", 4, 2, -1, 1, 33.232051))
sketch8.setExpression("Constraints[13]", "Params.sketch8_length")
sketch8.setExpression("Constraints[14]", "Params.sketch8_length2")
pocket5 = body.newObject("PartDesign::Pocket", "Pocket004")
pocket5.Profile = sketch8
pocket5.setExpression("Length", "Params.pocket5_length")
pocket5.Reversed = True

# Sketch on XZ plane
sketch9 = body.newObject("Sketcher::SketchObject", "Sketch008")
sketch9.AttachmentSupport = (doc.getObject("XZ_Plane"), [""])
sketch9.MapMode = "FlatFace"
sketch9.addGeometry(Part.LineSegment(App.Vector(3, -159, 0), App.Vector(-18, -122, 0)), False)
sketch9.addGeometry(Part.LineSegment(App.Vector(-18, -122, 0), App.Vector(-33, -131, 0)), False)
sketch9.addGeometry(Part.LineSegment(App.Vector(-33, -131, 0), App.Vector(-12, -168, 0)), False)
sketch9.addGeometry(Part.LineSegment(App.Vector(-12, -168, 0), App.Vector(3, -159, 0)), False)
sketch9.addConstraint(Sketcher.Constraint("Coincident", 0, 2, 1, 1))
sketch9.addConstraint(Sketcher.Constraint("Coincident", 1, 2, 2, 1))
sketch9.addConstraint(Sketcher.Constraint("Coincident", 2, 2, 3, 1))
sketch9.addConstraint(Sketcher.Constraint("Coincident", 3, 2, 0, 1))
sketch9.addConstraint(Sketcher.Constraint("Perpendicular", 0, 1))
sketch9.addConstraint(Sketcher.Constraint("Perpendicular", 1, 2))
sketch9.addConstraint(Sketcher.Constraint("Perpendicular", 2, 3))
sketch9.addConstraint(Sketcher.Constraint("Angle", 0, Q("120 deg")))
sketch9.addConstraint(Sketcher.Constraint("Distance", 0, 43.0))
sketch9.addConstraint(Sketcher.Constraint("DistanceX", 1, 2, 0, 2, 15.0))
sketch9.addConstraint(Sketcher.Constraint("DistanceX", 0, 2, -1, 1, 18.232051))
sketch9.addConstraint(Sketcher.Constraint("DistanceY", 0, 2, -1, 1, 121.965988))
sketch9.setExpression("Constraints[8]", "Params.sketch9_length")
pocket6 = body.newObject("PartDesign::Pocket", "Pocket005")
pocket6.Profile = sketch9
pocket6.setExpression("Length", "Params.pocket6_length")

doc.recompute()
